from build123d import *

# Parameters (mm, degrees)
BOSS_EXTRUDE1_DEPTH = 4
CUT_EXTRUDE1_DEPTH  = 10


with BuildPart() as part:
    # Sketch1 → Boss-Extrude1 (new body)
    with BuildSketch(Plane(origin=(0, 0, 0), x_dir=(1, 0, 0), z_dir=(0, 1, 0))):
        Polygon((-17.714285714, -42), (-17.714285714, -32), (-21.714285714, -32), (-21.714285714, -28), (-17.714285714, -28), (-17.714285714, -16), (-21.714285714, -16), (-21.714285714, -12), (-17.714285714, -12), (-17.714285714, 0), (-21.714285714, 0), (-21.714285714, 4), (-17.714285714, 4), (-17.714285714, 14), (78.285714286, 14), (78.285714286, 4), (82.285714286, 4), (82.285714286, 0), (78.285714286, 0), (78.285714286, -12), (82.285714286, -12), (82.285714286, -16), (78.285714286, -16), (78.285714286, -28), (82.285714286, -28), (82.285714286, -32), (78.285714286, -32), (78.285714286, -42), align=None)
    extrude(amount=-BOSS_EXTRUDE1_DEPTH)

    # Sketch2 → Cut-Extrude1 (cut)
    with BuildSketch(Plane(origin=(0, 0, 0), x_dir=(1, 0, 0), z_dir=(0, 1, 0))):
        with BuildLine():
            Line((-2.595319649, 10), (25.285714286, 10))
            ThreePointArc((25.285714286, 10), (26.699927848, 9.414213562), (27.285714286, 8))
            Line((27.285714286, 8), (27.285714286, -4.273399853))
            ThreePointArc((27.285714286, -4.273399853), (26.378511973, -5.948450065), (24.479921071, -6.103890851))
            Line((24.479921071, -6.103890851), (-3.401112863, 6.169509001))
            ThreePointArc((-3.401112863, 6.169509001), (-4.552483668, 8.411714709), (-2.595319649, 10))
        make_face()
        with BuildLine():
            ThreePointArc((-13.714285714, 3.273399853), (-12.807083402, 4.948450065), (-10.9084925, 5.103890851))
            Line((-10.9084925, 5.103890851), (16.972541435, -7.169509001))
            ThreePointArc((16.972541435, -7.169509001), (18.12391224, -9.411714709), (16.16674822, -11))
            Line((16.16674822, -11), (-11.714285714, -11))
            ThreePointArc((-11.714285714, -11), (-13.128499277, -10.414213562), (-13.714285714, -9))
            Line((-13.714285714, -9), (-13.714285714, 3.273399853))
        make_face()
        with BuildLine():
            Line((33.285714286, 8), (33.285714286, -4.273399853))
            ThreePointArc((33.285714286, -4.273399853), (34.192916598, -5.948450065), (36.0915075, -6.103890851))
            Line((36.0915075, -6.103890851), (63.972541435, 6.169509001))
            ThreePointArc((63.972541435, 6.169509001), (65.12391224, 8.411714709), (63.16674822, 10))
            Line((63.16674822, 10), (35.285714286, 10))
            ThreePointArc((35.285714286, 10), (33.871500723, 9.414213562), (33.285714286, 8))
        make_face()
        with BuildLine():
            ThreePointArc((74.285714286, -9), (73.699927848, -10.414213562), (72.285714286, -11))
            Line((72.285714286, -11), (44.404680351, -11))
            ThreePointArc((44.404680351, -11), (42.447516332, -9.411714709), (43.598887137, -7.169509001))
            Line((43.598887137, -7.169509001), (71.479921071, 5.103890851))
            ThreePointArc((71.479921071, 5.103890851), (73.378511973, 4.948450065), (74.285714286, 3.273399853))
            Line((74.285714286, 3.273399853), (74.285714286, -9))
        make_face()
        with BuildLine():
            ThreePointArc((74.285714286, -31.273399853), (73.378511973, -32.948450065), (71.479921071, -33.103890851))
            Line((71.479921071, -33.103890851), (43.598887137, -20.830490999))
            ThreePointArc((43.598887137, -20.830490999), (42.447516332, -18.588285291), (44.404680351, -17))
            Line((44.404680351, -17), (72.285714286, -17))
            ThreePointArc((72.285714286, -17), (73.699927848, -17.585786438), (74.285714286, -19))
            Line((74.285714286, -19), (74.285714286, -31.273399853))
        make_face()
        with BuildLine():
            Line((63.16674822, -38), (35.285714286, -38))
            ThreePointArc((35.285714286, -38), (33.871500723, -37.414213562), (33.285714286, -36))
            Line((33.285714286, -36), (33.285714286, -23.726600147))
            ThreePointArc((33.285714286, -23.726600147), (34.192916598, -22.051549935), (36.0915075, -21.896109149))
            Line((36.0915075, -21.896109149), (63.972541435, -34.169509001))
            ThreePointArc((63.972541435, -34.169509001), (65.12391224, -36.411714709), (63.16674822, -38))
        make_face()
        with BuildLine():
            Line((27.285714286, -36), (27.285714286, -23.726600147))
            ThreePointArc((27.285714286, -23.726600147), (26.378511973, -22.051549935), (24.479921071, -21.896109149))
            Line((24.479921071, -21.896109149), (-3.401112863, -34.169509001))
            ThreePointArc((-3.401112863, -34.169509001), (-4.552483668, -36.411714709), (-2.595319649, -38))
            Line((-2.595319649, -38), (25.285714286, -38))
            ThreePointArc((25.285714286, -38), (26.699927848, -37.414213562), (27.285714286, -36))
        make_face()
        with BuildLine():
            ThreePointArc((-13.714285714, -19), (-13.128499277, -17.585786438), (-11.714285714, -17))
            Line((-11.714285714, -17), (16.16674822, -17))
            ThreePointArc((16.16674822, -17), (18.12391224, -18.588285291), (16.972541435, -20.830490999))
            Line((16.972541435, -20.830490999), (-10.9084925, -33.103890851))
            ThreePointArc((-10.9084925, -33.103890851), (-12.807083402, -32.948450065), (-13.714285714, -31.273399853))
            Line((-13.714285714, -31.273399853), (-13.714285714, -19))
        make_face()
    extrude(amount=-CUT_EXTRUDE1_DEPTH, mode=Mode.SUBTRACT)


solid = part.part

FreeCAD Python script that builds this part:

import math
import FreeCAD as App
import Part
import Sketcher

doc = App.newDocument("Part")
body = doc.addObject("PartDesign::Body", "Body")

sketch1 = body.newObject("Sketcher::SketchObject", "Sketch")
sketch1.AttachmentSupport = (doc.getObject("XZ_Plane"), [""])
sketch1.MapMode = "FlatFace"
sketch1.addGeometry([
    Part.LineSegment(App.Vector(-17.7, 32, 0), App.Vector(-17.7, 42, 0)),
    Part.LineSegment(App.Vector(-17.7, 42, 0), App.Vector(78.3, 42, 0)),
    Part.LineSegment(App.Vector(78.3, 42, 0), App.Vector(78.3, 32, 0)),
    Part.LineSegment(App.Vector(78.3, 32, 0), App.Vector(82.3, 32, 0)),
    Part.LineSegment(App.Vector(82.3, 32, 0), App.Vector(82.3, 28, 0)),
    Part.LineSegment(App.Vector(82.3, 28, 0), App.Vector(78.3, 28, 0)),
    Part.LineSegment(App.Vector(78.3, 28, 0), App.Vector(78.3, 16, 0)),
    Part.LineSegment(App.Vector(78.3, 16, 0), App.Vector(82.3, 16, 0)),
    Part.LineSegment(App.Vector(82.3, 16, 0), App.Vector(82.3, 12, 0)),
    Part.LineSegment(App.Vector(82.3, 12, 0), App.Vector(78.3, 12, 0)),
    Part.LineSegment(App.Vector(78.3, 12, 0), App.Vector(78.3, 0, 0)),
    Part.LineSegment(App.Vector(78.3, 0, 0), App.Vector(82.3, 0, 0)),
    Part.LineSegment(App.Vector(82.3, 0, 0), App.Vector(82.3, -4, 0)),
    Part.LineSegment(App.Vector(82.3, -4, 0), App.Vector(78.3, -4, 0)),
    Part.LineSegment(App.Vector(78.3, -4, 0), App.Vector(78.3, -14, 0)),
    Part.LineSegment(App.Vector(78.3, -14, 0), App.Vector(-17.7, -14, 0)),
    Part.LineSegment(App.Vector(-17.7, -14, 0), App.Vector(-17.7, -4, 0)),
    Part.LineSegment(App.Vector(-17.7, -4, 0), App.Vector(-21.7, -4, 0)),
    Part.LineSegment(App.Vector(-21.7, -4, 0), App.Vector(-21.7, 0, 0)),
    Part.LineSegment(App.Vector(-21.7, 0, 0), App.Vector(-17.7, 0, 0)),
    Part.LineSegment(App.Vector(-17.7, 0, 0), App.Vector(-17.7, 12, 0)),
    Part.LineSegment(App.Vector(-17.7, 12, 0), App.Vector(-21.7, 12, 0)),
    Part.LineSegment(App.Vector(-21.7, 12, 0), App.Vector(-21.7, 16, 0)),
    Part.LineSegment(App.Vector(-21.7, 16, 0), App.Vector(-17.7, 16, 0)),
    Part.LineSegment(App.Vector(-17.7, 16, 0), App.Vector(-17.7, 28, 0)),
    Part.LineSegment(App.Vector(-17.7, 28, 0), App.Vector(-21.7, 28, 0)),
    Part.LineSegment(App.Vector(-21.7, 28, 0), App.Vector(-21.7, 32, 0)),
    Part.LineSegment(App.Vector(-21.7, 32, 0), App.Vector(-17.7, 32, 0)),
], False)
sketch1.addConstraint([
    Sketcher.Constraint("Coincident", 0, 2, 1, 1),
    Sketcher.Constraint("Coincident", 1, 2, 2, 1),
    Sketcher.Constraint("Coincident", 2, 2, 3, 1),
    Sketcher.Constraint("Coincident", 3, 2, 4, 1),
    Sketcher.Constraint("Coincident", 4, 2, 5, 1),
    Sketcher.Constraint("Coincident", 5, 2, 6, 1),
    Sketcher.Constraint("Coincident", 6, 2, 7, 1),
    Sketcher.Constraint("Coincident", 7, 2, 8, 1),
    Sketcher.Constraint("Coincident", 8, 2, 9, 1),
    Sketcher.Constraint("Coincident", 9, 2, 10, 1),
    Sketcher.Constraint("Coincident", 10, 2, 11, 1),
    Sketcher.Constraint("Coincident", 11, 2, 12, 1),
    Sketcher.Constraint("Coincident", 12, 2, 13, 1),
    Sketcher.Constraint("Coincident", 13, 2, 14, 1),
    Sketcher.Constraint("Coincident", 14, 2, 15, 1),
    Sketcher.Constraint("Coincident", 15, 2, 16, 1),
    Sketcher.Constraint("Coincident", 16, 2, 17, 1),
    Sketcher.Constraint("Coincident", 17, 2, 18, 1),
    Sketcher.Constraint("Coincident", 18, 2, 19, 1),
    Sketcher.Constraint("Coincident", 19, 2, 20, 1),
    Sketcher.Constraint("Coincident", 20, 2, 21, 1),
    Sketcher.Constraint("Coincident", 21, 2, 22, 1),
    Sketcher.Constraint("Coincident", 22, 2, 23, 1),
    Sketcher.Constraint("Coincident", 23, 2, 24, 1),
    Sketcher.Constraint("Coincident", 24, 2, 25, 1),
    Sketcher.Constraint("Coincident", 25, 2, 26, 1),
    Sketcher.Constraint("Coincident", 26, 2, 27, 1),
    Sketcher.Constraint("Coincident", 27, 2, 0, 1),
    Sketcher.Constraint("Vertical", 0),
    Sketcher.Constraint("Horizontal", 1),
    Sketcher.Constraint("Vertical", 2),
    Sketcher.Constraint("Horizontal", 3),
    Sketcher.Constraint("Vertical", 4),
    Sketcher.Constraint("Horizontal", 5),
    Sketcher.Constraint("Vertical", 6),
    Sketcher.Constraint("Horizontal", 7),
    Sketcher.Constraint("Vertical", 8),
    Sketcher.Constraint("Horizontal", 9),
    Sketcher.Constraint("Vertical", 10),
    Sketcher.Constraint("Horizontal", 11),
    Sketcher.Constraint("Vertical", 12),
    Sketcher.Constraint("Horizontal", 13),
    Sketcher.Constraint("Vertical", 14),
    Sketcher.Constraint("Horizontal", 15),
    Sketcher.Constraint("Vertical", 16),
    Sketcher.Constraint("Horizontal", 17),
    Sketcher.Constraint("Vertical", 18),
    Sketcher.Constraint("Horizontal", 19),
    Sketcher.Constraint("Vertical", 20),
    Sketcher.Constraint("Horizontal", 21),
    Sketcher.Constraint("Vertical", 22),
    Sketcher.Constraint("Horizontal", 23),
    Sketcher.Constraint("Vertical", 24),
    Sketcher.Constraint("Horizontal", 25),
    Sketcher.Constraint("Vertical", 26),
    Sketcher.Constraint("Horizontal", 27),
    Sketcher.Constraint("PointOnObject", 10, 2, -1),
    Sketcher.Constraint("PointOnObject", 18, 2, -1),
    Sketcher.Constraint("Horizontal", 13, 2, 16, 2),
    Sketcher.Constraint("Horizontal", 9, 2, 20, 2),
    Sketcher.Constraint("Horizontal", 7, 2, 22, 2),
    Sketcher.Constraint("Horizontal", 5, 2, 24, 2),
    Sketcher.Constraint("Horizontal", 3, 2, 26, 2),
    Sketcher.Constraint("Vertical", 2, 2, 5, 2),
    Sketcher.Constraint("Vertical", 4, 2, 7, 2),
    Sketcher.Constraint("Vertical", 6, 2, 9, 2),
    Sketcher.Constraint("Vertical", 8, 2, 11, 2),
    Sketcher.Constraint("Vertical", 10, 2, 13, 2),
    Sketcher.Constraint("Vertical", 0, 2, 15, 2),
    Sketcher.Constraint("Vertical", 16, 2, 19, 2),
    Sketcher.Constraint("Vertical", 18, 2, 21, 2),
    Sketcher.Constraint("Vertical", 20, 2, 23, 2),
    Sketcher.Constraint("Vertical", 22, 2, 25, 2),
    Sketcher.Constraint("Equal", 13, 17),
    Sketcher.Constraint("Equal", 27, 4),
    Sketcher.Constraint("Equal", 4, 8),
    Sketcher.Constraint("Equal", 6, 10),
    Sketcher.Constraint("Equal", 8, 12),
    Sketcher.Constraint("Equal", 2, 14),
    Sketcher.Constraint("DistanceX", 1, 1, 1, 2, 96.0),
    Sketcher.Constraint("DistanceX", 3, 1, 3, 2, 4.0),
    Sketcher.Constraint("DistanceY", 0, 1, 0, 2, 10.0),
    Sketcher.Constraint("DistanceY", 6, 2, 6, 1, 12.0),
    Sketcher.Constraint("DistanceX", 0, 2, -1, 1, 17.714286),
])
pad1 = body.newObject("PartDesign::Pad", "Pad")
pad1.Profile = sketch1
pad1.Length = 4

sketch2 = body.newObject("Sketcher::SketchObject", "Sketch001")
sketch2.AttachmentSupport = (doc.getObject("XZ_Plane"), [""])
sketch2.MapMode = "FlatFace"
sketch2.addGeometry([
    Part.LineSegment(App.Vector(25.3, -10, 0), App.Vector(-2.6, -10, 0)),
    Part.ArcOfCircle(Part.Circle(App.Vector(-2.6, -8, 0), App.Vector(0, 0, 1), 2), math.radians(114), math.radians(270)),
    Part.LineSegment(App.Vector(-3.4, -6.2, 0), App.Vector(24.5, 6.1, 0)),
    Part.ArcOfCircle(Part.Circle(App.Vector(25.3, 4.3, 0), App.Vector(0, 0, 1), 2), math.radians(0), math.radians(114)),
    Part.LineSegment(App.Vector(27.3, 4.3, 0), App.Vector(27.3, -8, 0)),
    Part.ArcOfCircle(Part.Circle(App.Vector(25.3, -8, 0), App.Vector(0, 0, 1), 2), math.radians(-90), math.radians(0)),
    Part.ArcOfCircle(Part.Circle(App.Vector(-11.7, -3.3, 0), App.Vector(0, 0, 1), 2), math.radians(180), math.radians(294)),
    Part.LineSegment(App.Vector(-13.7, -3.3, 0), App.Vector(-13.7, 9, 0)),
    Part.ArcOfCircle(Part.Circle(App.Vector(-11.7, 9, 0), App.Vector(0, 0, 1), 2), math.radians(90), math.radians(180)),
    Part.LineSegment(App.Vector(-11.7, 11, 0), App.Vector(16.2, 11, 0)),
    Part.ArcOfCircle(Part.Circle(App.Vector(16.2, 9, 0), App.Vector(0, 0, 1), 2), math.radians(-66), math.radians(90)),
    Part.LineSegment(App.Vector(17, 7.2, 0), App.Vector(-10.9, -5.1, 0)),
    Part.LineSegment(App.Vector(33.3, -8, 0), App.Vector(33.3, 4.3, 0)),
    Part.ArcOfCircle(Part.Circle(App.Vector(35.3, 4.3, 0), App.Vector(0, 0, 1), 2), math.radians(66), math.radians(180)),
    Part.LineSegment(App.Vector(36.1, 6.1, 0), App.Vector(64, -6.2, 0)),
    Part.ArcOfCircle(Part.Circle(App.Vector(63.2, -8, 0), App.Vector(0, 0, 1), 2), math.radians(-90), math.radians(66)),
    Part.LineSegment(App.Vector(63.2, -10, 0), App.Vector(35.3, -10, 0)),
    Part.ArcOfCircle(Part.Circle(App.Vector(35.3, -8, 0), App.Vector(0, 0, 1), 2), math.radians(180), math.radians(270)),
    Part.ArcOfCircle(Part.Circle(App.Vector(72.3, 9, 0), App.Vector(0, 0, 1), 2), math.radians(0), math.radians(90)),
    Part.LineSegment(App.Vector(74.3, 9, 0), App.Vector(74.3, -3.3, 0)),
    Part.ArcOfCircle(Part.Circle(App.Vector(72.3, -3.3, 0), App.Vector(0, 0, 1), 2), math.radians(-114), math.radians(0)),
    Part.LineSegment(App.Vector(71.5, -5.1, 0), App.Vector(43.6, 7.2, 0)),
    Part.ArcOfCircle(Part.Circle(App.Vector(44.4, 9, 0), App.Vector(0, 0, 1), 2), math.radians(90), math.radians(246)),
    Part.LineSegment(App.Vector(44.4, 11, 0), App.Vector(72.3, 11, 0)),
    Part.ArcOfCircle(Part.Circle(App.Vector(72.3, 31.3, 0), App.Vector(0, 0, 1), 2), math.radians(0), math.radians(114)),
    Part.LineSegment(App.Vector(74.3, 31.3, 0), App.Vector(74.3, 19, 0)),
    Part.ArcOfCircle(Part.Circle(App.Vector(72.3, 19, 0), App.Vector(0, 0, 1), 2), math.radians(-90), math.radians(0)),
    Part.LineSegment(App.Vector(72.3, 17, 0), App.Vector(44.4, 17, 0)),
    Part.ArcOfCircle(Part.Circle(App.Vector(44.4, 19, 0), App.Vector(0, 0, 1), 2), math.radians(114), math.radians(270)),
    Part.LineSegment(App.Vector(43.6, 20.8, 0), App.Vector(71.5, 33.1, 0)),
    Part.LineSegment(App.Vector(35.3, 38, 0), App.Vector(63.2, 38, 0)),
    Part.ArcOfCircle(Part.Circle(App.Vector(63.2, 36, 0), App.Vector(0, 0, 1), 2), math.radians(-66), math.radians(90)),
    Part.LineSegment(App.Vector(64, 34.2, 0), App.Vector(36.1, 21.9, 0)),
    Part.ArcOfCircle(Part.Circle(App.Vector(35.3, 23.7, 0), App.Vector(0, 0, 1), 2), math.radians(180), math.radians(294)),
    Part.LineSegment(App.Vector(33.3, 23.7, 0), App.Vector(33.3, 36, 0)),
    Part.ArcOfCircle(Part.Circle(App.Vector(35.3, 36, 0), App.Vector(0, 0, 1), 2), math.radians(90), math.radians(180)),
    Part.LineSegment(App.Vector(27.3, 36, 0), App.Vector(27.3, 23.7, 0)),
    Part.ArcOfCircle(Part.Circle(App.Vector(25.3, 23.7, 0), App.Vector(0, 0, 1), 2), math.radians(-114), math.radians(0)),
    Part.LineSegment(App.Vector(24.5, 21.9, 0), App.Vector(-3.4, 34.2, 0)),
    Part.ArcOfCircle(Part.Circle(App.Vector(-2.6, 36, 0), App.Vector(0, 0, 1), 2), math.radians(90), math.radians(246)),
    Part.LineSegment(App.Vector(-2.6, 38, 0), App.Vector(25.3, 38, 0)),
    Part.ArcOfCircle(Part.Circle(App.Vector(25.3, 36, 0), App.Vector(0, 0, 1), 2), math.radians(0), math.radians(90)),
    Part.ArcOfCircle(Part.Circle(App.Vector(-11.7, 19, 0), App.Vector(0, 0, 1), 2), math.radians(180), math.radians(270)),
    Part.LineSegment(App.Vector(-13.7, 19, 0), App.Vector(-13.7, 31.3, 0)),
    Part.ArcOfCircle(Part.Circle(App.Vector(-11.7, 31.3, 0), App.Vector(0, 0, 1), 2), math.radians(66), math.radians(180)),
    Part.LineSegment(App.Vector(-10.9, 33.1, 0), App.Vector(17, 20.8, 0)),
    Part.ArcOfCircle(Part.Circle(App.Vector(16.2, 19, 0), App.Vector(0, 0, 1), 2), math.radians(-90), math.radians(66)),
    Part.LineSegment(App.Vector(16.2, 17, 0), App.Vector(-11.7, 17, 0)),
], False)
sketch2.addConstraint([
    Sketcher.Constraint("Tangent", 0, 2, 1, 2),
    Sketcher.Constraint("Tangent", 1, 1, 2, 1),
    Sketcher.Constraint("Tangent", 2, 2, 3, 2),
    Sketcher.Constraint("Tangent", 3, 1, 4, 1),
    Sketcher.Constraint("Tangent", 4, 2, 5, 2),
    Sketcher.Constraint("Tangent", 5, 1, 0, 1),
    Sketcher.Constraint("Tangent", 6, 1, 7, 1),
    Sketcher.Constraint("Tangent", 7, 2, 8, 2),
    Sketcher.Constraint("Tangent", 8, 1, 9, 1),
    Sketcher.Constraint("Tangent", 9, 2, 10, 2),
    Sketcher.Constraint("Tangent", 10, 1, 11, 1),
    Sketcher.Constraint("Tangent", 11, 2, 6, 2),
    Sketcher.Constraint("Tangent", 12, 2, 13, 2),
    Sketcher.Constraint("Tangent", 13, 1, 14, 1),
    Sketcher.Constraint("Tangent", 14, 2, 15, 2),
    Sketcher.Constraint("Tangent", 15, 1, 16, 1),
    Sketcher.Constraint("Tangent", 16, 2, 17, 2),
    Sketcher.Constraint("Tangent", 17, 1, 12, 1),
    Sketcher.Constraint("Tangent", 18, 1, 19, 1),
    Sketcher.Constraint("Tangent", 19, 2, 20, 2),
    Sketcher.Constraint("Tangent", 20, 1, 21, 1),
    Sketcher.Constraint("Tangent", 21, 2, 22, 2),
    Sketcher.Constraint("Tangent", 22, 1, 23, 1),
    Sketcher.Constraint("Tangent", 23, 2, 18, 2),
    Sketcher.Constraint("Tangent", 24, 1, 25, 1),
    Sketcher.Constraint("Tangent", 25, 2, 26, 2),
    Sketcher.Constraint("Tangent", 26, 1, 27, 1),
    Sketcher.Constraint("Tangent", 27, 2, 28, 2),
    Sketcher.Constraint("Tangent", 28, 1, 29, 1),
    Sketcher.Constraint("Tangent", 29, 2, 24, 2),
    Sketcher.Constraint("Tangent", 30, 2, 31, 2),
    Sketcher.Constraint("Tangent", 31, 1, 32, 1),
    Sketcher.Constraint("Tangent", 32, 2, 33, 2),
    Sketcher.Constraint("Tangent", 33, 1, 34, 1),
    Sketcher.Constraint("Tangent", 34, 2, 35, 2),
    Sketcher.Constraint("Tangent", 35, 1, 30, 1),
    Sketcher.Constraint("Tangent", 36, 2, 37, 2),
    Sketcher.Constraint("Tangent", 37, 1, 38, 1),
    Sketcher.Constraint("Tangent", 38, 2, 39, 2),
    Sketcher.Constraint("Tangent", 39, 1, 40, 1),
    Sketcher.Constraint("Tangent", 40, 2, 41, 2),
    Sketcher.Constraint("Tangent", 41, 1, 36, 1),
    Sketcher.Constraint("Tangent", 42, 1, 43, 1),
    Sketcher.Constraint("Tangent", 43, 2, 44, 2),
    Sketcher.Constraint("Tangent", 44, 1, 45, 1),
    Sketcher.Constraint("Tangent", 45, 2, 46, 2),
    Sketcher.Constraint("Tangent", 46, 1, 47, 1),
    Sketcher.Constraint("Tangent", 47, 2, 42, 2),
    Sketcher.Constraint("Horizontal", 0),
    Sketcher.Constraint("Vertical", 4),
    Sketcher.Constraint("Vertical", 7),
    Sketcher.Constraint("Horizontal", 9),
    Sketcher.Constraint("Vertical", 12),
    Sketcher.Constraint("Horizontal", 16),
    Sketcher.Constraint("Vertical", 19),
    Sketcher.Constraint("Horizontal", 23),
    Sketcher.Constraint("Vertical", 25),
    Sketcher.Constraint("Horizontal", 27),
    Sketcher.Constraint("Horizontal", 30),
    Sketcher.Constraint("Vertical", 34),
    Sketcher.Constraint("Vertical", 36),
    Sketcher.Constraint("Horizontal", 40),
    Sketcher.Constraint("Vertical", 43),
    Sketcher.Constraint("Horizontal", 47),
    Sketcher.Constraint("Equal", 1, 3),
    Sketcher.Constraint("Equal", 3, 5),
    Sketcher.Constraint("Equal", 5, 6),
    Sketcher.Constraint("Equal", 6, 8),
    Sketcher.Constraint("Equal", 8, 10),
    Sketcher.Constraint("Equal", 10, 13),
    Sketcher.Constraint("Equal", 13, 15),
    Sketcher.Constraint("Equal", 15, 17),
    Sketcher.Constraint("Equal", 17, 18),
    Sketcher.Constraint("Equal", 18, 20),
    Sketcher.Constraint("Equal", 20, 22),
    Sketcher.Constraint("Equal", 22, 24),
    Sketcher.Constraint("Equal", 24, 26),
    Sketcher.Constraint("Equal", 26, 28),
    Sketcher.Constraint("Equal", 28, 31),
    Sketcher.Constraint("Equal", 31, 33),
    Sketcher.Constraint("Equal", 33, 35),
    Sketcher.Constraint("Equal", 35, 37),
    Sketcher.Constraint("Equal", 37, 39),
    Sketcher.Constraint("Equal", 39, 41),
    Sketcher.Constraint("Equal", 41, 42),
    Sketcher.Constraint("Equal", 42, 44),
    Sketcher.Constraint("Equal", 44, 46),
    Sketcher.Constraint("Parallel", 2, 11),
    Sketcher.Constraint("Parallel", 14, 21),
    Sketcher.Constraint("Parallel", 11, 29),
    Sketcher.Constraint("Parallel", 29, 32),
    Sketcher.Constraint("Parallel", 21, 38),
    Sketcher.Constraint("Parallel", 38, 45),
    Sketcher.Constraint("Horizontal", 3, 3, 13, 3),
    Sketcher.Constraint("Horizontal", 5, 3, 15, 3),
    Sketcher.Constraint("Horizontal", 10, 3, 18, 3),
    Sketcher.Constraint("Horizontal", 6, 3, 20, 3),
    Sketcher.Constraint("Horizontal", 33, 3, 37, 3),
    Sketcher.Constraint("Horizontal", 35, 3, 39, 3),
    Sketcher.Constraint("Horizontal", 28, 3, 42, 3),
    Sketcher.Constraint("Horizontal", 24, 3, 44, 3),
    Sketcher.Constraint("Horizontal", 2, 2, 13, 1),
    Sketcher.Constraint("Vertical", 20, 3, 24, 3),
    Sketcher.Constraint("Vertical", 22, 3, 28, 3),
    Sketcher.Constraint("Vertical", 15, 3, 31, 3),
    Sketcher.Constraint("Vertical", 17, 3, 33, 3),
    Sketcher.Constraint("Vertical", 5, 3, 37, 3),
    Sketcher.Constraint("Vertical", 8, 3, 42, 3),
    Sketcher.Constraint("Equal", 0, 9),
    Sketcher.Constraint("Radius", 1, 2.0),
    Sketcher.Constraint("DistanceY", 1, 3, -1, 1, 8.0),
    Sketcher.Constraint("DistanceY", -1, 1, 8, 3, 9.0),
    Sketcher.Constraint("DistanceY", -1, 1, 26, 3, 19.0),
    Sketcher.Constraint("DistanceY", -1, 1, 31, 3, 36.0),
    Sketcher.Constraint("DistanceY", 4, 2, 4, 1, 12.2734),
    Sketcher.Constraint("Distance", 2, 30.462902),
    Sketcher.Constraint("DistanceX", 1, 3, -1, 1, 2.59532),
    Sketcher.Constraint("DistanceX", -1, 1, 10, 3, 16.166748),
    Sketcher.Constraint("DistanceX", -1, 1, 15, 3, 63.166748),
    Sketcher.Constraint("DistanceX", -1, 1, 22, 3, 44.40468),
])
pocket1 = body.newObject("PartDesign::Pocket", "Pocket")
pocket1.Profile = sketch2
pocket1.Length = 10
pocket1.Reversed = True

doc.recompute()
